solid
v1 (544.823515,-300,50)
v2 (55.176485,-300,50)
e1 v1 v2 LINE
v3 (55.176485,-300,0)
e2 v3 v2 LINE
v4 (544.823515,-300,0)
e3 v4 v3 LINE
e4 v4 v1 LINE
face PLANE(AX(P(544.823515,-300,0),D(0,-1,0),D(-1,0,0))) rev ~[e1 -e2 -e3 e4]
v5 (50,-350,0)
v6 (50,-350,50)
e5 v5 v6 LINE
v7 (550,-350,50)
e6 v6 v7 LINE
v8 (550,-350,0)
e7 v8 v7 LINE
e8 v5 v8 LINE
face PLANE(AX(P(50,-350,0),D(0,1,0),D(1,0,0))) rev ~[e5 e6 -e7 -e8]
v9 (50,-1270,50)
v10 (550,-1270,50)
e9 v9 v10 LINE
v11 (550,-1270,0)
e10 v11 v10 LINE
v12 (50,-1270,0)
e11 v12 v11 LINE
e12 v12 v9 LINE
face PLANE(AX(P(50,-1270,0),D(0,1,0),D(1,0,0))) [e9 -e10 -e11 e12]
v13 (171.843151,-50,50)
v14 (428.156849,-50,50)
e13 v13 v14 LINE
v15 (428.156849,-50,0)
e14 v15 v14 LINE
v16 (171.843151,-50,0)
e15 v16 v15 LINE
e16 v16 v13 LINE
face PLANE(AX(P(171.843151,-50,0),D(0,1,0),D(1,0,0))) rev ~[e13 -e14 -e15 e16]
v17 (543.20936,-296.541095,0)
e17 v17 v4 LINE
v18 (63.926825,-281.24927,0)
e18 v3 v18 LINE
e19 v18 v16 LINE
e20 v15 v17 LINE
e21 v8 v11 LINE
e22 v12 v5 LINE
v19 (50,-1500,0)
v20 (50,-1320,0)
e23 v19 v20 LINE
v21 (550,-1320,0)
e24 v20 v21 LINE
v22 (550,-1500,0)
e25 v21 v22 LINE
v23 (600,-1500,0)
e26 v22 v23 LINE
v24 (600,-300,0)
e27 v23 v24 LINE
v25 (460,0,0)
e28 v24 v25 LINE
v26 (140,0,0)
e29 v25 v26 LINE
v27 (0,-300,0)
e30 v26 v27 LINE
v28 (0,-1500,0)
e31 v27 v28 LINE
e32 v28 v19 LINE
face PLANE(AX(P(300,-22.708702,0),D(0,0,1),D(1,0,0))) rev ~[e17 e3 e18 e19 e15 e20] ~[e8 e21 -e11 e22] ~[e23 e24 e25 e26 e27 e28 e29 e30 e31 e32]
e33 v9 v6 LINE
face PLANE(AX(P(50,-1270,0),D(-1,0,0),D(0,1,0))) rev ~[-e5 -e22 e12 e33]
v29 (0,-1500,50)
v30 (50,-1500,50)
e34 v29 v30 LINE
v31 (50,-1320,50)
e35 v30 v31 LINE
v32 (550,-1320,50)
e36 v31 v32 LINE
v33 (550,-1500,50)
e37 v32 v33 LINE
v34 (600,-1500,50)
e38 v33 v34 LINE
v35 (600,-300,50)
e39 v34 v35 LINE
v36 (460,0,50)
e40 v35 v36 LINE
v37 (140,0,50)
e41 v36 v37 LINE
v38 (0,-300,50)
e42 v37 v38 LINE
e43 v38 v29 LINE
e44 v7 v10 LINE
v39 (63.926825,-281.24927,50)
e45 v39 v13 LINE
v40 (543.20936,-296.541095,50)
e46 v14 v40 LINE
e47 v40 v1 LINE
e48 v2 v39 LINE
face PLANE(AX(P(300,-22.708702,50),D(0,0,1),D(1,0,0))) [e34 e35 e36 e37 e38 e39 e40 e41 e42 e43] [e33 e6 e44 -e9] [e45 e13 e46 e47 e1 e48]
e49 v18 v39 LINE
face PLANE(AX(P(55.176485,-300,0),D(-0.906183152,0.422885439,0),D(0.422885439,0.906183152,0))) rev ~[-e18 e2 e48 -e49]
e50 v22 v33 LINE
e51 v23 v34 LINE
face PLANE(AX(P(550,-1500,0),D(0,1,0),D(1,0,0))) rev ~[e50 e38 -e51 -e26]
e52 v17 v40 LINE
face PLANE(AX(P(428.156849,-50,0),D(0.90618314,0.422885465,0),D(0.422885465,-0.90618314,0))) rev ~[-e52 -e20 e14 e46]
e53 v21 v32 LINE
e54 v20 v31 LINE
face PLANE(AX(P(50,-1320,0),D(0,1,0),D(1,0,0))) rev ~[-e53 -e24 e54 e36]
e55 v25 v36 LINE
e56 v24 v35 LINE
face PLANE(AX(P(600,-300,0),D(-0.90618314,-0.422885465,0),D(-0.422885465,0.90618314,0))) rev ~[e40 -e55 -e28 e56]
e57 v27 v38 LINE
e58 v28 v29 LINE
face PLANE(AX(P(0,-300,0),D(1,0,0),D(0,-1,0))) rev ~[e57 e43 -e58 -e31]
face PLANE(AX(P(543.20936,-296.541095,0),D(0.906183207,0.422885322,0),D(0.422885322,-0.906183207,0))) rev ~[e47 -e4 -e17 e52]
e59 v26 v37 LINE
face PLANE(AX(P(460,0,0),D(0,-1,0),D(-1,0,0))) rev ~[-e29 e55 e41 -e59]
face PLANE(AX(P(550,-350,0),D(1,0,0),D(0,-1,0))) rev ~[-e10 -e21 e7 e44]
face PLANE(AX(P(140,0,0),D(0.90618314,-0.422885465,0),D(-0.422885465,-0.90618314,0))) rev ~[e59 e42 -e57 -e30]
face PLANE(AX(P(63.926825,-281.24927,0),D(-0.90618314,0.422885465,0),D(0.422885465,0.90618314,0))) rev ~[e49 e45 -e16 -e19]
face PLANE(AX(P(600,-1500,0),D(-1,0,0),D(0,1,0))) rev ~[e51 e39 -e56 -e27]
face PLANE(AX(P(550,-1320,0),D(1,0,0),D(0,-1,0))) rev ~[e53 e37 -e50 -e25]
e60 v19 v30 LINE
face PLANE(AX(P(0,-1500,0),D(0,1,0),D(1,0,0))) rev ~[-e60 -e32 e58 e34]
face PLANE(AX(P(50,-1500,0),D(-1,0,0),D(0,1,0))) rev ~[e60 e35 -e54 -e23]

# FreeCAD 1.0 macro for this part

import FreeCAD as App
import Part
import Sketcher

V = App.Vector


def add_polygon(sketch, points):
    """Adds a closed chain of lines whose ends are joined by coincident constraints."""
    first, n = sketch.GeometryCount, len(points)
    for a, b in zip(points, points[1:] + points[:1]):
        sketch.addGeometry(Part.LineSegment(App.Vector(*a, 0), App.Vector(*b, 0)), False)
    for i in range(n):
        sketch.addConstraint(Sketcher.Constraint("Coincident", first + i, 2, first + (i + 1) % n, 1))

doc = App.newDocument("Part")
body = doc.addObject("PartDesign::Body", "Body")

# Sketch on XY plane
sketch1 = body.newObject("Sketcher::SketchObject", "Sketch")
sketch1.AttachmentSupport = (doc.getObject("XY_Plane"), [""])
sketch1.MapMode = "FlatFace"
add_polygon(sketch1, [(460, 0), (140, 0), (0, -300), (0, -1500), (50, -1500), (50, -1320), (550, -1320), (550, -1500), (600, -1500), (600, -300)])  # lines 0-9
add_polygon(sketch1, [(50, -1270), (50, -350), (550, -350), (550, -1270)])  # lines 10-13
add_polygon(sketch1, [(55.2, -300), (63.9, -281.2), (171.8, -50), (428.2, -50), (543.2, -296.5), (544.8, -300)])  # lines 14-19
sketch1.addConstraint([
    Sketcher.Constraint("Horizontal", 0),
    Sketcher.Constraint("Vertical", 2),
    Sketcher.Constraint("Horizontal", 3),
    Sketcher.Constraint("Vertical", 4),
    Sketcher.Constraint("Horizontal", 5),
    Sketcher.Constraint("Vertical", 6),
    Sketcher.Constraint("Horizontal", 7),
    Sketcher.Constraint("Vertical", 8),
    Sketcher.Constraint("Vertical", 10),
    Sketcher.Constraint("Horizontal", 11),
    Sketcher.Constraint("Vertical", 12),
    Sketcher.Constraint("Horizontal", 13),
    Sketcher.Constraint("Horizontal", 16),
    Sketcher.Constraint("Horizontal", 19),
    Sketcher.Constraint("PointOnObject", 0, 2, -1),
    Sketcher.Constraint("PointOnObject", 1, 2, -2),
    Sketcher.Constraint("Parallel", 1, 14),
    Sketcher.Constraint("Parallel", 14, 15),
    Sketcher.Constraint("Parallel", 9, 17),
    Sketcher.Constraint("Parallel", 17, 18),
    Sketcher.Constraint("Horizontal", 3, 2, 6, 2),
    Sketcher.Constraint("Horizontal", 1, 2, 8, 2),
    Sketcher.Constraint("Horizontal", 8, 2, 18, 2),
    Sketcher.Constraint("Vertical", 4, 2, 10, 2),
    Sketcher.Constraint("Vertical", 6, 2, 11, 2),
    Sketcher.Constraint("Equal", 3, 7),
    Sketcher.Constraint("Equal", 1, 9),
    Sketcher.Constraint("DistanceX", 0, 2, 0, 1, 320.0),
    Sketcher.Constraint("DistanceX", 3, 1, 3, 2, 50.0),
    Sketcher.Constraint("DistanceX", 5, 1, 5, 2, 500.0),
    Sketcher.Constraint("DistanceY", 2, 2, 2, 1, 1200.0),
    Sketcher.Constraint("DistanceY", 4, 1, 4, 2, 180.0),
    Sketcher.Constraint("DistanceY", 10, 1, 10, 2, 920.0),
    Sketcher.Constraint("DistanceY", 1, 2, -1, 1, 300.0),
    Sketcher.Constraint("DistanceY", 10, 2, -1, 1, 350.0),
    Sketcher.Constraint("DistanceY", 15, 2, -1, 1, 50.0),
    Sketcher.Constraint("DistanceX", 16, 1, 16, 2, 256.313698),
    Sketcher.Constraint("Distance", 17, 272.065418),
    Sketcher.Constraint("DistanceY", 14, 2, -1, 1, 281.24927),
    Sketcher.Constraint("DistanceX", -1, 1, 15, 2, 171.843151),
])
pad1 = body.newObject("PartDesign::Pad", "Pad")
pad1.Profile = sketch1
pad1.Length = 50

doc.recompute()
